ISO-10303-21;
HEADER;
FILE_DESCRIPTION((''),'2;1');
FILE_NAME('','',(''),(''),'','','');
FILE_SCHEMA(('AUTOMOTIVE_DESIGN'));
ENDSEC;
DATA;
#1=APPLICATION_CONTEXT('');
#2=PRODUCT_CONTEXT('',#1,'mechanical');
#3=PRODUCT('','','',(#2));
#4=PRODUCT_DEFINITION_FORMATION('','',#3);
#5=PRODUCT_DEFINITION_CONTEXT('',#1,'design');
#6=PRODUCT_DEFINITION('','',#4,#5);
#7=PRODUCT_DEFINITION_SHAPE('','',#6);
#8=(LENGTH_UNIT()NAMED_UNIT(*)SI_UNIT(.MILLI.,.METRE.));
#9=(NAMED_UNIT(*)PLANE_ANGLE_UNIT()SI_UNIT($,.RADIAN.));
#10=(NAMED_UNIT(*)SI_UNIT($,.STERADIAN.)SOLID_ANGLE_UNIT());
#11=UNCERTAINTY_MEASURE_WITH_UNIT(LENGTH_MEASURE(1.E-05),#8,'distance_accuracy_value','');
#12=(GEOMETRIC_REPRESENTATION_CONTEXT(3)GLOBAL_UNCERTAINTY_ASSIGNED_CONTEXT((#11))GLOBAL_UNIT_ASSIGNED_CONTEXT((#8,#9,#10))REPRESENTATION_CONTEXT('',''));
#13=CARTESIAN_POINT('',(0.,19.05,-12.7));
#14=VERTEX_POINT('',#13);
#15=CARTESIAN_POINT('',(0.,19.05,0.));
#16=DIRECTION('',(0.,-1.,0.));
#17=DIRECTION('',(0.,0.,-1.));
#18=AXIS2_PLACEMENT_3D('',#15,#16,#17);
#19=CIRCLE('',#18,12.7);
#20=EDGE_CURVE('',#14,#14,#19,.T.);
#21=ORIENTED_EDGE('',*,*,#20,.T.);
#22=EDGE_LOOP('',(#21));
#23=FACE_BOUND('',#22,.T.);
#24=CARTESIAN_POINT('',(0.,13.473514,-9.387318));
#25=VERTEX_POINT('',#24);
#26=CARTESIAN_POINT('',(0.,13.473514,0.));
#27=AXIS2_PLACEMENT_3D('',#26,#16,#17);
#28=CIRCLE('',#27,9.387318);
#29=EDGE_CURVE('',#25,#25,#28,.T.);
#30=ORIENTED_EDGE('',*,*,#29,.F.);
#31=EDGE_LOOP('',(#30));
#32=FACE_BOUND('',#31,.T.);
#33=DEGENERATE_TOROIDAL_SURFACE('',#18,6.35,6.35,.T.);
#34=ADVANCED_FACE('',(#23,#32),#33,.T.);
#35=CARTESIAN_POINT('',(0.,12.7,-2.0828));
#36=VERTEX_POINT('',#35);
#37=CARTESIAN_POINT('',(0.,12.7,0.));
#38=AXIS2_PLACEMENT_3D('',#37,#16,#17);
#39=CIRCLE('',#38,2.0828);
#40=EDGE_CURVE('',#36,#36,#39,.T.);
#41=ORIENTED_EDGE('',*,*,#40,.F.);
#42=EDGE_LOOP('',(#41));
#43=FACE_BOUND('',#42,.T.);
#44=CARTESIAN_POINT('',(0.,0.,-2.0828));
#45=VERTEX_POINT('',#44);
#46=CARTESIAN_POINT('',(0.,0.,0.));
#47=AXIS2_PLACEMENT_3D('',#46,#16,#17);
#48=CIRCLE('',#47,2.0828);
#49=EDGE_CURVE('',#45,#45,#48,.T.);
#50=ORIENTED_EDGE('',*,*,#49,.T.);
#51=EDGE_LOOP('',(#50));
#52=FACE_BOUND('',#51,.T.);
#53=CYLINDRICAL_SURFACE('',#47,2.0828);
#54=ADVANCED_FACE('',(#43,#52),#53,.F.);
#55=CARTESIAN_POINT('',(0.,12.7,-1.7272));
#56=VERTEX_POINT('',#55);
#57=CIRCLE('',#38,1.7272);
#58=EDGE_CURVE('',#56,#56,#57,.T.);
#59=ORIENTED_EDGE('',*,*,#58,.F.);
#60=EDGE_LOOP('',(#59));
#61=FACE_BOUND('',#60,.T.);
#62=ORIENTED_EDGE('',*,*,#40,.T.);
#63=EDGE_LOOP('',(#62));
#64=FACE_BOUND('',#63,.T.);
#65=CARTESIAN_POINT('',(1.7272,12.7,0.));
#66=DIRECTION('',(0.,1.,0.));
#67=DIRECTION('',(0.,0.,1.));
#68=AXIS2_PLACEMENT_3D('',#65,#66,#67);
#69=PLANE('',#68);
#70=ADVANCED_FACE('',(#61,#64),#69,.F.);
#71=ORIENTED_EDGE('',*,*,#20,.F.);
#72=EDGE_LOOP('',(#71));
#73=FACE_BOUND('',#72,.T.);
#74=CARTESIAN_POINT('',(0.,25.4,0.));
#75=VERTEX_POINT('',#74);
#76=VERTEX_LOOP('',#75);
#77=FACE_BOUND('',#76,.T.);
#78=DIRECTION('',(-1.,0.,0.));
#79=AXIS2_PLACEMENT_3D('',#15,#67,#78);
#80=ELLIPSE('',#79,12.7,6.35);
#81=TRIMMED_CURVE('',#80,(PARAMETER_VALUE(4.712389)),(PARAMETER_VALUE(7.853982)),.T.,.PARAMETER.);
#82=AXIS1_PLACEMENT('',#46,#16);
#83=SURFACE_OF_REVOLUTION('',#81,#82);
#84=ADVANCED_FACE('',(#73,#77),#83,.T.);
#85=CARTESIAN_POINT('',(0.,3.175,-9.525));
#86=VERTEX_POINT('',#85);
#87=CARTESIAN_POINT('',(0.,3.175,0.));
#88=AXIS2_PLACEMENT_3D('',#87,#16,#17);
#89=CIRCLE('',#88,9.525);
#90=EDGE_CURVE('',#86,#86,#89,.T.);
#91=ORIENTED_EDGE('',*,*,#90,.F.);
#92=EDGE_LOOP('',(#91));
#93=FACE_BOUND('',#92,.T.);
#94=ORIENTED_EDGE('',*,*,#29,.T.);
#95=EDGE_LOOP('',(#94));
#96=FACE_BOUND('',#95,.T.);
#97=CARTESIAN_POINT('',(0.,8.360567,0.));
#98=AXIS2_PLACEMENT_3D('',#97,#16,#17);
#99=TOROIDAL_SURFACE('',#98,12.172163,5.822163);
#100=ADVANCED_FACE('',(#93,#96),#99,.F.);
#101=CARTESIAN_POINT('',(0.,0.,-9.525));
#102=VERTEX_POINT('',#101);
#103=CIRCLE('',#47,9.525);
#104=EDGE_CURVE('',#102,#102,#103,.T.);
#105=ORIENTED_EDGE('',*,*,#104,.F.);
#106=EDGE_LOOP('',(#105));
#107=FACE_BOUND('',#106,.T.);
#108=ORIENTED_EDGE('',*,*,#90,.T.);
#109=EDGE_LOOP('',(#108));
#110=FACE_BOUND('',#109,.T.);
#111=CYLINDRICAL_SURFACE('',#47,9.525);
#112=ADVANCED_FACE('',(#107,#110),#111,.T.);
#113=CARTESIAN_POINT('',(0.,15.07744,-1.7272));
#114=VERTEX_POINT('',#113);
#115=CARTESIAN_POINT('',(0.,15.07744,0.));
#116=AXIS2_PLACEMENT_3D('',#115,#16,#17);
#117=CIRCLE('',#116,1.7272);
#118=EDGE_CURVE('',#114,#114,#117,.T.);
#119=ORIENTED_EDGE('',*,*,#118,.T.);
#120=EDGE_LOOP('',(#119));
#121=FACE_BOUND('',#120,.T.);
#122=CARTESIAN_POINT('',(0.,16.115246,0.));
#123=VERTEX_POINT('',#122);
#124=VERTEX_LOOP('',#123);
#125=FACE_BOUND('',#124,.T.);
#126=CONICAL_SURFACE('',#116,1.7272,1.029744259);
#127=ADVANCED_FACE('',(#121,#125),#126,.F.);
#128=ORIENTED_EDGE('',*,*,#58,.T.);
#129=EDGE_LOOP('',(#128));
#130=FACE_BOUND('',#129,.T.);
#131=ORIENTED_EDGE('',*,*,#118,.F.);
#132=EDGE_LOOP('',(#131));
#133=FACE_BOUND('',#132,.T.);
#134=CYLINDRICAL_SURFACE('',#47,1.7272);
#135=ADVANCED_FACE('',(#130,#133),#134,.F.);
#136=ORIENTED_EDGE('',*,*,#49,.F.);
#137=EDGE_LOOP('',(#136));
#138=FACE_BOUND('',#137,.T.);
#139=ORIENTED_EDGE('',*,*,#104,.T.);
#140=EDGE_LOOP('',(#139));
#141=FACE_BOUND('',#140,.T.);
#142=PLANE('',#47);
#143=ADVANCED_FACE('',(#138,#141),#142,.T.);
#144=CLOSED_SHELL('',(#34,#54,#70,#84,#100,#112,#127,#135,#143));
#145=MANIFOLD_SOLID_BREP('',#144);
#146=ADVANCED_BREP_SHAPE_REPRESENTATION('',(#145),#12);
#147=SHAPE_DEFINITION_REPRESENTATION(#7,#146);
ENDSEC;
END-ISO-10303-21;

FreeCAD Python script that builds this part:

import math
import FreeCAD as App
import Part
import Sketcher
Q = App.Units.Quantity

doc = App.newDocument("Part")
body = doc.addObject("PartDesign::Body", "Body")

# Sketch on XY plane
sketch1 = body.newObject("Sketcher::SketchObject", "Sketch")
sketch1.AttachmentSupport = (doc.getObject("XY_Plane"), [""])
sketch1.MapMode = "FlatFace"
sketch1.addGeometry(Part.LineSegment(App.Vector(-9.525, 0, 0), App.Vector(0, 0, 0)), False)
sketch1.addGeometry(Part.LineSegment(App.Vector(0, 0, 0), App.Vector(0, 25.4, 0)), False)
sketch1.addGeometry(Part.BSplineCurve([App.Vector(0, 25.4, 0), App.Vector(-12.7, 25.4, 0), App.Vector(-12.7, 19.05, 0)], [3, 3], [4.71238898, 6.283185307], False, 2, [1, 0.707106781, 1], False), False)
sketch1.addGeometry(Part.ArcOfCircle(Part.Circle(App.Vector(-6.35, 19.05, 0), App.Vector(0, 0, 1), 6.35), math.radians(-180), math.radians(-118.575596)), False)
sketch1.addGeometry(Part.ArcOfCircle(Part.Circle(App.Vector(-12.172163, 8.360567, 0), App.Vector(0, 0, 1), 5.822163), math.radians(-62.956295), math.radians(61.424404)), False)
sketch1.addGeometry(Part.LineSegment(App.Vector(-9.525, 3.175, 0), App.Vector(-9.525, 0, 0)), False)
sketch1.addConstraint(Sketcher.Constraint("Block", 2))
sketch1.addConstraint(Sketcher.Constraint("Coincident", 0, 2, 1, 1))
sketch1.addConstraint(Sketcher.Constraint("Coincident", 1, 2, 2, 1))
sketch1.addConstraint(Sketcher.Constraint("Coincident", 2, 2, 3, 1))
sketch1.addConstraint(Sketcher.Constraint("Tangent", 3, 2, 4, 2))
sketch1.addConstraint(Sketcher.Constraint("Coincident", 4, 1, 5, 1))
sketch1.addConstraint(Sketcher.Constraint("Coincident", 5, 2, 0, 1))
sketch1.addConstraint(Sketcher.Constraint("Horizontal", 0))
sketch1.addConstraint(Sketcher.Constraint("Vertical", 1))
sketch1.addConstraint(Sketcher.Constraint("Vertical", 5))
sketch1.addConstraint(Sketcher.Constraint("PointOnObject", 5, 2, -1))
sketch1.addConstraint(Sketcher.Constraint("Radius", 3, Q("0.25 in")))
sketch1.addConstraint(Sketcher.Constraint("DistanceX", 0, 1, 0, 2, Q("0.375 in")))
sketch1.addConstraint(Sketcher.Constraint("DistanceY", 5, 2, 5, 1, Q("0.125 in")))
sketch1.addConstraint(Sketcher.Constraint("DistanceY", -1, 1, 3, 3, Q("0.75 in")))
sketch1.addConstraint(Sketcher.Constraint("Radius", 4, 5.822163))
revolution = body.newObject("PartDesign::Revolution", "Revolution")
revolution.Profile = sketch1
revolution.ReferenceAxis = (sketch1, ["V_Axis"])
revolution.Angle = 360

# Sketch on XZ plane
sketch2 = body.newObject("Sketcher::SketchObject", "Sketch001")
sketch2.AttachmentSupport = (doc.getObject("XZ_Plane"), [""])
sketch2.MapMode = "FlatFace"
sketch2.addGeometry(Part.Circle(App.Vector(0, 0, 0), App.Vector(0, 0, 1), 1.7), False)
sketch2.addConstraint(Sketcher.Constraint("Coincident", 0, 3, -1, 1))
sketch2.addConstraint(Sketcher.Constraint("Diameter", 0, Q("0.136 in")))
doc.recompute()
hole = body.newObject("PartDesign::Hole", "Hole")
hole.Profile = sketch2
hole.ThreadType = "None"
hole.Diameter = Q("0.136 in")
hole.DepthType = "Dimension"
hole.Depth = Q("0.5936 in")
hole.DrillPoint = "Angled"
hole.DrillPointAngle = 118
hole.HoleCutType = "Counterbore"
hole.HoleCutDiameter = Q("0.164 in")
hole.HoleCutDepth = Q("0.5 in")

doc.recompute()
